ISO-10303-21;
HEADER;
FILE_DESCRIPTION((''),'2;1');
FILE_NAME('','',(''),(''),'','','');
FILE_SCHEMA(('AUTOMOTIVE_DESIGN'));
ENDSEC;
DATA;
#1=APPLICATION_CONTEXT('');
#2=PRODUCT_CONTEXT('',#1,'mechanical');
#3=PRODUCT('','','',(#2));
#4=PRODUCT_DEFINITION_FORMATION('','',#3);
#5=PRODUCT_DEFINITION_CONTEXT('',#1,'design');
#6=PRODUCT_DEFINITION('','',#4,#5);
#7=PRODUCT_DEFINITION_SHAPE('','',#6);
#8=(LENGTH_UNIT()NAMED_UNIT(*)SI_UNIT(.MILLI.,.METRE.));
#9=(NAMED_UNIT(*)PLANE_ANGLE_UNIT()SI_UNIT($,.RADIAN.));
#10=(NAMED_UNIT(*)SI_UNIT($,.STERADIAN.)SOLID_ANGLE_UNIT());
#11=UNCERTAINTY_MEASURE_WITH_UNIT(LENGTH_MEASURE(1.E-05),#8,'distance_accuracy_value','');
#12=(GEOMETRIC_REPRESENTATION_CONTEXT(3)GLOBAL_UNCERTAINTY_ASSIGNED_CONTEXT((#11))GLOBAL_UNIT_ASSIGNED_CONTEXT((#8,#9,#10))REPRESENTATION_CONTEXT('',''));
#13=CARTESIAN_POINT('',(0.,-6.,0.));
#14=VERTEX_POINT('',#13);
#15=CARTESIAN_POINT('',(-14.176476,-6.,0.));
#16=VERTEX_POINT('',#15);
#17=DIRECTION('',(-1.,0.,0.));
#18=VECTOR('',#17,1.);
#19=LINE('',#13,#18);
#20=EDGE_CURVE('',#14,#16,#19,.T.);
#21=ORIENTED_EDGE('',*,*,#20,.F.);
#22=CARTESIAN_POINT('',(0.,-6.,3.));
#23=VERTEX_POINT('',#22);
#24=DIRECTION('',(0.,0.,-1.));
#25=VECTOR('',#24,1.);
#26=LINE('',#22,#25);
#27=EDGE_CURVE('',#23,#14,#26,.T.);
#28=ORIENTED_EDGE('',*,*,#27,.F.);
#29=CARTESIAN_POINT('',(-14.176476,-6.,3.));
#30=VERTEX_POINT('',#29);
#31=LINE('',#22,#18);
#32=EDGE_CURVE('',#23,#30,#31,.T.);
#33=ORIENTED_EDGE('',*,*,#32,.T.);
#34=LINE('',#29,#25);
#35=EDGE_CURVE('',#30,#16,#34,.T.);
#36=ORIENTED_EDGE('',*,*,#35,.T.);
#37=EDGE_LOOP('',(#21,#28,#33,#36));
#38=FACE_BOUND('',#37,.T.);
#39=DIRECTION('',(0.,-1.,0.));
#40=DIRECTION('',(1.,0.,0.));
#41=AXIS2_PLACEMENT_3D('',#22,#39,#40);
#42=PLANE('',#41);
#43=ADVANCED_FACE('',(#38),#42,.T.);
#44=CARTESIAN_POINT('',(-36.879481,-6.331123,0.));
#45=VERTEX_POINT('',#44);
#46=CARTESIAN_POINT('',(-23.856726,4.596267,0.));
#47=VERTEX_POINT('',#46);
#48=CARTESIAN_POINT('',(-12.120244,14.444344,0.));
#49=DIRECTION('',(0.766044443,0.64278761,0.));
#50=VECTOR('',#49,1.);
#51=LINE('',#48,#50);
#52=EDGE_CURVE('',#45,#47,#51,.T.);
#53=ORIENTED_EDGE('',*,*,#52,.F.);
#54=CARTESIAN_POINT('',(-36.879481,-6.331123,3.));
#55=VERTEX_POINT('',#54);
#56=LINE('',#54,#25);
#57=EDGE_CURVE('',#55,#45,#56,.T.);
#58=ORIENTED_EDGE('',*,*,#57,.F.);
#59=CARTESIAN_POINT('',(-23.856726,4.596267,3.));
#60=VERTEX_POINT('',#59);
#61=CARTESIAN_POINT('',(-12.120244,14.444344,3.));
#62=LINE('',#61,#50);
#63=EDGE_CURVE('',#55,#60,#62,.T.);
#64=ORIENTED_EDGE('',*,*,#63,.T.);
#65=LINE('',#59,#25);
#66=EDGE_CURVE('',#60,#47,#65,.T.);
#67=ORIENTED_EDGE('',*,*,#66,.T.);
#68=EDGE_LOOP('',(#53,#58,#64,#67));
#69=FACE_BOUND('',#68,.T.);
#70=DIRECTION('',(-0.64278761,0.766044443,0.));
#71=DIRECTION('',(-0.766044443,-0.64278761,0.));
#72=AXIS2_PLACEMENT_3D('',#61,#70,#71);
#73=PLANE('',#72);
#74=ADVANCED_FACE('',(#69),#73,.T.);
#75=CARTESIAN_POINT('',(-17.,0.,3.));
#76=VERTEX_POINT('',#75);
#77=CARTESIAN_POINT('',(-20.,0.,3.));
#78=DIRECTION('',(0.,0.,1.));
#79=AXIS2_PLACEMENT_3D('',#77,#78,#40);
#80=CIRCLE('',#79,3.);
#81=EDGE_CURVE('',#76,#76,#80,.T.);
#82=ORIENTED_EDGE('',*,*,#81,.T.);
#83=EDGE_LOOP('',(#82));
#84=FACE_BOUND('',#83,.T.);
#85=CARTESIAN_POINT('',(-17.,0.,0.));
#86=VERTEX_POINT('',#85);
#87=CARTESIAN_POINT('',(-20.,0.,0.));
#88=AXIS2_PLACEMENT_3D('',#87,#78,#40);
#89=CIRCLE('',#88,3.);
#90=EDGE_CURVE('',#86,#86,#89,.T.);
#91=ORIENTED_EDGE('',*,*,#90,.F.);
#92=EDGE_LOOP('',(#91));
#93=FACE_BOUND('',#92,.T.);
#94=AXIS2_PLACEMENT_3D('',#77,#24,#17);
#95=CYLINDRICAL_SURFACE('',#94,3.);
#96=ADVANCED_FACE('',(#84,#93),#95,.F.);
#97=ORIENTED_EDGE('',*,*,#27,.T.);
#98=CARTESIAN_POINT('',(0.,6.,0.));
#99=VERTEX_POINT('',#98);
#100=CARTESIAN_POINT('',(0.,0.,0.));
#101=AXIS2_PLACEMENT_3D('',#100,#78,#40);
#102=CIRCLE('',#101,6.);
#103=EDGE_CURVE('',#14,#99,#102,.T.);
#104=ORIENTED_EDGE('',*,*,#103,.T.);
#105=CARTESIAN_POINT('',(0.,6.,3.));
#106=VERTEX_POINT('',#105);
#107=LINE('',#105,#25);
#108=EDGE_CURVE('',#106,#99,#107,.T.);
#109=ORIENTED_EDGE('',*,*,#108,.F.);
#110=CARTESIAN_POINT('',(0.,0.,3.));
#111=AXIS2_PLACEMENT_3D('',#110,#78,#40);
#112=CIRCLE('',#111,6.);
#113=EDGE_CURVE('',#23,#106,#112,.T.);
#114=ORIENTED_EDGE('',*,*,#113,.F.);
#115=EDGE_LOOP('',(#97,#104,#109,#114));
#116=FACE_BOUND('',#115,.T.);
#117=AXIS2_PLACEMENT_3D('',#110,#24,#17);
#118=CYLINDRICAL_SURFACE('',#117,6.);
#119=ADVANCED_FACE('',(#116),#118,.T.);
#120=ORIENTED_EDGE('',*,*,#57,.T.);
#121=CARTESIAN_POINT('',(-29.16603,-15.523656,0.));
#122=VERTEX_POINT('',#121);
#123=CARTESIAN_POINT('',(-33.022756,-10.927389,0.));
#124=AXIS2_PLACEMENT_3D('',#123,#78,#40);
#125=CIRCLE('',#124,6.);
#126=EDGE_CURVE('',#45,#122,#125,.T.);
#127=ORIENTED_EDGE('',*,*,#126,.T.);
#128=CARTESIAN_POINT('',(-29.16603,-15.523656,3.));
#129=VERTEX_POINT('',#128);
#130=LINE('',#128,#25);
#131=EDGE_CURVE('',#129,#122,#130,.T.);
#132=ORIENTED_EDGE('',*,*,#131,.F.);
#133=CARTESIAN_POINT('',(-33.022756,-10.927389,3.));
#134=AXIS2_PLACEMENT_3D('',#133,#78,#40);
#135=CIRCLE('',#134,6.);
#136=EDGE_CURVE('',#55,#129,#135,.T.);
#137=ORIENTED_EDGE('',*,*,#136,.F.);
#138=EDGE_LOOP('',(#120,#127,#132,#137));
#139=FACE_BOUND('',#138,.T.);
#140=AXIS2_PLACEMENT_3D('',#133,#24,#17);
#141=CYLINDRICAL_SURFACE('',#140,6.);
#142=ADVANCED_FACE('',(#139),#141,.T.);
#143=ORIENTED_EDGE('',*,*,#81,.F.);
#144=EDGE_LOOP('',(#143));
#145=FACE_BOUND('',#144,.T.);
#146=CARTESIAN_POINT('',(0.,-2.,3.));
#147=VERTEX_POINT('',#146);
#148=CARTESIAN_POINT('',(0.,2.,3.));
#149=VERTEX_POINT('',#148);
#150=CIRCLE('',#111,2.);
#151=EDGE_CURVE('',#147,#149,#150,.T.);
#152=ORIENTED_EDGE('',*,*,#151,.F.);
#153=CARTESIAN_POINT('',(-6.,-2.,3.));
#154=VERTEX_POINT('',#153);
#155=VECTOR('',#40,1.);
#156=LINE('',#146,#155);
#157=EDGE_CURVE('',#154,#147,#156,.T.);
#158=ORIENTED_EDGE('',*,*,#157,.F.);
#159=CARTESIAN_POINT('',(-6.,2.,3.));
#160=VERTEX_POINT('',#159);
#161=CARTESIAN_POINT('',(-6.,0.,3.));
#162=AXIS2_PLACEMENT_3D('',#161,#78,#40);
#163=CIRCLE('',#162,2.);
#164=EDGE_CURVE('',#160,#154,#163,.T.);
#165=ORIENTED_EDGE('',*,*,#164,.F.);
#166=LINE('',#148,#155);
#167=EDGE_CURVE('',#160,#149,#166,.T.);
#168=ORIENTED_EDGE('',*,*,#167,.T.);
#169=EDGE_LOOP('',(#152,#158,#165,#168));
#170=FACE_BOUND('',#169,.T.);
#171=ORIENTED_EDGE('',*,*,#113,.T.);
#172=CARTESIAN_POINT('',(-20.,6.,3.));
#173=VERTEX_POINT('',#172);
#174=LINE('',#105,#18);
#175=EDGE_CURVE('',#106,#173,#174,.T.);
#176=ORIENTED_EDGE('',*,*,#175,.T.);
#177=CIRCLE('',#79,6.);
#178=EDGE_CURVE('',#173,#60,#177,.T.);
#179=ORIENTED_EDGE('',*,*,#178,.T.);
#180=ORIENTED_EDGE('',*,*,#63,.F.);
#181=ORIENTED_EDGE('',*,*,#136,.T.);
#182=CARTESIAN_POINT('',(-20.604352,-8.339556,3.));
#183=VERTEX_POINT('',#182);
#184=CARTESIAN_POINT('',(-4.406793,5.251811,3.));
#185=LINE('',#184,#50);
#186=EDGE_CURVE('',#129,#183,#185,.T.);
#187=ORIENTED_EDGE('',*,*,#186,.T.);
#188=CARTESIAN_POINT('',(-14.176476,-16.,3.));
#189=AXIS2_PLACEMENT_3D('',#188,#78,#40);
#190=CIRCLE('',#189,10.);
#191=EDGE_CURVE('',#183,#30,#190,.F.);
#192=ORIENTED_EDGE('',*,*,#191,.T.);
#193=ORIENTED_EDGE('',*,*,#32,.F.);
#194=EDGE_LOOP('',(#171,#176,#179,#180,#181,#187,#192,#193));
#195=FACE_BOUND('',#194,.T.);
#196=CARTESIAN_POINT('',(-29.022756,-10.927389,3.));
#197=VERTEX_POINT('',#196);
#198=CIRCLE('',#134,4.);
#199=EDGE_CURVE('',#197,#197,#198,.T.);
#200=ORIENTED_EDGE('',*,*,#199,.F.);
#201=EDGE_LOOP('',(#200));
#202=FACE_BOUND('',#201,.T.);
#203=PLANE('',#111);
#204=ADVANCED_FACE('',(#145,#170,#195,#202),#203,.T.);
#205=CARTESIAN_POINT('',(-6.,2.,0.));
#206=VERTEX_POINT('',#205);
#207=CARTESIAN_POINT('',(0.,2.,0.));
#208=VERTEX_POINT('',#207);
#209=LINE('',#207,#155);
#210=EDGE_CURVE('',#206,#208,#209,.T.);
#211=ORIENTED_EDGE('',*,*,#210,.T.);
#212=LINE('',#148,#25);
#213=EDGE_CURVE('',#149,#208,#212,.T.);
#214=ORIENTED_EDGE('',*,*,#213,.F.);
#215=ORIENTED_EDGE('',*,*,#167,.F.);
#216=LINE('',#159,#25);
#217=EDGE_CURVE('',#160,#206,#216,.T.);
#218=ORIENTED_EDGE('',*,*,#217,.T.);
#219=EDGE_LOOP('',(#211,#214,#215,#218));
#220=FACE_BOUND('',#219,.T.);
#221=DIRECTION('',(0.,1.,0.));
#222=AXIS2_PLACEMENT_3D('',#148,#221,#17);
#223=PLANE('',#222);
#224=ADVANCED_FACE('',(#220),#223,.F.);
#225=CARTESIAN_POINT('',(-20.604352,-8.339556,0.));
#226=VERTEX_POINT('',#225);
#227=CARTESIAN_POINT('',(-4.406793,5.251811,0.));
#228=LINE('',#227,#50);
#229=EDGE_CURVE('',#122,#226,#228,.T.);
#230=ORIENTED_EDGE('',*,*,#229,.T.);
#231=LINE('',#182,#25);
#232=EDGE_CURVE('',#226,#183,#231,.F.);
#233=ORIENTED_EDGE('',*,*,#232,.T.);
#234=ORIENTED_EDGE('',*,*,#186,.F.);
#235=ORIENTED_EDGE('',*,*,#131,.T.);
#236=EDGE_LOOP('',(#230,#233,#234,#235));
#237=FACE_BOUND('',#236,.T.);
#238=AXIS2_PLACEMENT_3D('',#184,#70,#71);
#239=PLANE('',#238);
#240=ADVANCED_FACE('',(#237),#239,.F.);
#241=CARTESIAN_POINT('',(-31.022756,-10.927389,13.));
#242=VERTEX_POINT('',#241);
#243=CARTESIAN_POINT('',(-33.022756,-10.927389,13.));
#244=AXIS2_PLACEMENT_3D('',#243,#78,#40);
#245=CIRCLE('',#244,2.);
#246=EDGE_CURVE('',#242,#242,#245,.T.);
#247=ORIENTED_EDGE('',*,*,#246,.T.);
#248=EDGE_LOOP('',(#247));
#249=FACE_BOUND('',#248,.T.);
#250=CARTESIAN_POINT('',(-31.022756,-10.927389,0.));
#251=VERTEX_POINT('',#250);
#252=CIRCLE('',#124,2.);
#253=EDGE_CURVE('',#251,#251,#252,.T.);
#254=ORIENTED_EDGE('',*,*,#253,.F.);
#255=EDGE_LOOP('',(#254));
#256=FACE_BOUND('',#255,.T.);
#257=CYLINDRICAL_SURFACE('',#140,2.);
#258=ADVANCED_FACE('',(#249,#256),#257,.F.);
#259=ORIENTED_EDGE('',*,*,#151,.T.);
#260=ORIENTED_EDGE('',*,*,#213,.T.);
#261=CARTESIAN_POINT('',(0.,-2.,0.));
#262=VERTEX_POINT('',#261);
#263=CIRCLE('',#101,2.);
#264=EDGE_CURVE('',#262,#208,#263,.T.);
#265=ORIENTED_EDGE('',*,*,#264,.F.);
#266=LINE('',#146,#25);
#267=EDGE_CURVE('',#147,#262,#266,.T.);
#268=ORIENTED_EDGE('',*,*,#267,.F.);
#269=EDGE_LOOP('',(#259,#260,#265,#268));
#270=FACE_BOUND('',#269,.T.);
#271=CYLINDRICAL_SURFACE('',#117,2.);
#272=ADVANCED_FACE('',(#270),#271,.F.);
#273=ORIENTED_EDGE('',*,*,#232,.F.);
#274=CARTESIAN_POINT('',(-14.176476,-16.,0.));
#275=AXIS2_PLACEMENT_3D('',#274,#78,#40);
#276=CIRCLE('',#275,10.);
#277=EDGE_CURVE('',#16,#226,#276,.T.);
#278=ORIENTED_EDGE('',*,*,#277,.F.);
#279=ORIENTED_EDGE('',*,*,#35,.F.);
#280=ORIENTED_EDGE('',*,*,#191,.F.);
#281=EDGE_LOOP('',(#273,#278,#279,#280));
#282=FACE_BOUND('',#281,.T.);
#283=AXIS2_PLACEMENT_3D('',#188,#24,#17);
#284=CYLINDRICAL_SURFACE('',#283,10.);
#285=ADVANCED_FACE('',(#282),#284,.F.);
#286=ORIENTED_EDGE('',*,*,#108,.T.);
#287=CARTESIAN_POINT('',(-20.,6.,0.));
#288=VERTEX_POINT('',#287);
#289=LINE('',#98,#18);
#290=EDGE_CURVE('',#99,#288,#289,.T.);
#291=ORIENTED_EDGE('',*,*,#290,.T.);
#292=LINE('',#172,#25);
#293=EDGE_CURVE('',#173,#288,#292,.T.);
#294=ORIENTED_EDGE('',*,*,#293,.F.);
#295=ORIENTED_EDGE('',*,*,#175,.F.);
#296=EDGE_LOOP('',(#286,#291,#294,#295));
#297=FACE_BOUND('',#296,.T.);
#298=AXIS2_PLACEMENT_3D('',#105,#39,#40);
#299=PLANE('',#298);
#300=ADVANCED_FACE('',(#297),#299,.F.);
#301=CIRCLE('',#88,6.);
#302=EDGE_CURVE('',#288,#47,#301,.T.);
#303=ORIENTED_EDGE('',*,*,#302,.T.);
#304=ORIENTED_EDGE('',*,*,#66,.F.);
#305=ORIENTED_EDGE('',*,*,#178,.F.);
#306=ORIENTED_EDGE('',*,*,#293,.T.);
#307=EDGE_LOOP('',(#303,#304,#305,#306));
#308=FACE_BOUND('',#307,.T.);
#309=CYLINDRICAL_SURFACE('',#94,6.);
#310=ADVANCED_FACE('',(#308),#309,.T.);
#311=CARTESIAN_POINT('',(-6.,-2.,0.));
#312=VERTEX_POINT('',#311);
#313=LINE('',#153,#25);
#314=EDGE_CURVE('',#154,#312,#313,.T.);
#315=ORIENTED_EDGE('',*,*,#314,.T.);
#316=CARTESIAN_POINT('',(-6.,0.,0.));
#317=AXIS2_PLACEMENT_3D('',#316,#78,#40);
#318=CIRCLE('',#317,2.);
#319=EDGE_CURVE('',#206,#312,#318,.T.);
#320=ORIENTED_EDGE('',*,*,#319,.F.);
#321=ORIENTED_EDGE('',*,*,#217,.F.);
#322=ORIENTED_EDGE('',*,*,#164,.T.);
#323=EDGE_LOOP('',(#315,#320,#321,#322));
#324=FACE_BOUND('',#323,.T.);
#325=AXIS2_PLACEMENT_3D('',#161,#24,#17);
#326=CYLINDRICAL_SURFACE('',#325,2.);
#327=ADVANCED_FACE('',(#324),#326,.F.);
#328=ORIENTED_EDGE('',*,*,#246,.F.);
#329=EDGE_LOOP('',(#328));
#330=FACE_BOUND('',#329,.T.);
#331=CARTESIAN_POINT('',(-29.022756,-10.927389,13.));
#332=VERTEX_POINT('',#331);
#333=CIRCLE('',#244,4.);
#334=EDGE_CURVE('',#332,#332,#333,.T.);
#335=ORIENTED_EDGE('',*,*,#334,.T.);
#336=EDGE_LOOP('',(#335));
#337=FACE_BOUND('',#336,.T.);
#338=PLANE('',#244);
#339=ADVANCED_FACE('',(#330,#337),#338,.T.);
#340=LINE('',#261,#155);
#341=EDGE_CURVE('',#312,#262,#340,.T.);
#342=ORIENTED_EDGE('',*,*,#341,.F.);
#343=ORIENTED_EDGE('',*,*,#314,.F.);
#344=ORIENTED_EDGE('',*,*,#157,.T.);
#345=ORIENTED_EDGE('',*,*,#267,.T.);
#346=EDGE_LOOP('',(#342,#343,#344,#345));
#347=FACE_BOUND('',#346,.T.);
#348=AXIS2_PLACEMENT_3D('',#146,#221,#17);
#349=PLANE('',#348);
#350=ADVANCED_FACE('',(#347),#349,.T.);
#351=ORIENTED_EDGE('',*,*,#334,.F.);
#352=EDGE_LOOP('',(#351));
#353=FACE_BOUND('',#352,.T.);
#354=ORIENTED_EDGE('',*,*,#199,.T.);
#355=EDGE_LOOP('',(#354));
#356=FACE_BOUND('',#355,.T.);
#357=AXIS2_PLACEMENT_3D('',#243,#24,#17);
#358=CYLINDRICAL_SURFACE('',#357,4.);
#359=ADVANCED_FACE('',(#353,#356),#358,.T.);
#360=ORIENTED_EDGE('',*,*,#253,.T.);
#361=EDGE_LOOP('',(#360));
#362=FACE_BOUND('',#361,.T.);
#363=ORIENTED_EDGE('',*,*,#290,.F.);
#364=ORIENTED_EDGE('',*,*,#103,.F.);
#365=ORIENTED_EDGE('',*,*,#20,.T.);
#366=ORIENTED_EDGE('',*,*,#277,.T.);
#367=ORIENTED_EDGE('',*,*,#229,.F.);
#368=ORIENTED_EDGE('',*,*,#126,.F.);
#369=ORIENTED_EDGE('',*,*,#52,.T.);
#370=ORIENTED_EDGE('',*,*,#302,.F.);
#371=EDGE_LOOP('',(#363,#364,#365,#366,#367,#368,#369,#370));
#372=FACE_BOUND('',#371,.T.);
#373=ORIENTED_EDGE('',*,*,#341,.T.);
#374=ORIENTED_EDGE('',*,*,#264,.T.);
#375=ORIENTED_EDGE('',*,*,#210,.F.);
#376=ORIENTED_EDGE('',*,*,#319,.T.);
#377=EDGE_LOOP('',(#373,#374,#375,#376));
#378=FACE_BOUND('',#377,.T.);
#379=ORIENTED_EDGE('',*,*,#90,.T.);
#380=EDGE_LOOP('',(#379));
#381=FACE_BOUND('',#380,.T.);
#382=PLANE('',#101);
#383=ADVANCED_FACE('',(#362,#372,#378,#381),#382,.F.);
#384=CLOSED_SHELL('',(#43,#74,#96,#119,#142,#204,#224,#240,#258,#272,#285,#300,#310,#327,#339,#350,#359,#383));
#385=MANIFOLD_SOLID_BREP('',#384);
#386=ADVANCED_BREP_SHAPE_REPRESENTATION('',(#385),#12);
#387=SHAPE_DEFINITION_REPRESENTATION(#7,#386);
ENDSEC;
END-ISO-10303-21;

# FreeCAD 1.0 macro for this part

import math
import FreeCAD as App
import Part
import Sketcher

V = App.Vector
Q = App.Units.Quantity


def edges_at(feature, points):
    """Names of the edges that pass closest to the given points."""
    edges = feature.Shape.Edges
    near = lambda p: min(range(len(edges)), key=lambda i: edges[i].distToShape(Part.Vertex(*p))[0])
    return sorted({f"Edge{near(p) + 1}" for p in points})

doc = App.newDocument("Part")
body = doc.addObject("PartDesign::Body", "Body")

# Sketch on XY plane
sketch1 = body.newObject("Sketcher::SketchObject", "Sketch")
sketch1.AttachmentSupport = (doc.getObject("XY_Plane"), [""])
sketch1.MapMode = "FlatFace"
sketch1.addGeometry([
    Part.LineSegment(V(-17.8, -6, 0), V(0, -6, 0)),  # 0
    Part.ArcOfCircle(Part.Circle(V(0, 0, 0), V(0, 0, 1), 6), math.radians(-90), math.radians(90)),  # 1
    Part.LineSegment(V(0, 6, 0), V(-20, 6, 0)),  # 2
    Part.ArcOfCircle(Part.Circle(V(-20, 0, 0), V(0, 0, 1), 6), math.radians(90), math.radians(130)),  # 3
    Part.LineSegment(V(-23.9, 4.6, 0), V(-36.9, -6.3, 0)),  # 4
    Part.ArcOfCircle(Part.Circle(V(-33, -10.9, 0), V(0, 0, 1), 6), math.radians(130), math.radians(310)),  # 5
    Part.LineSegment(V(-29.2, -15.5, 0), V(-17.8, -6, 0)),  # 6
    Part.Circle(V(-33, -10.9, 0), V(0, 0, 1), 2),  # 7
    Part.Circle(V(-20, 0, 0), V(0, 0, 1), 3),  # 8
    Part.ArcOfCircle(Part.Circle(V(-6, 0, 0), V(0, 0, 1), 2), math.radians(90), math.radians(270)),  # 9
    Part.LineSegment(V(-6, 2, 0), V(0, 2, 0)),  # 10
    Part.ArcOfCircle(Part.Circle(V(0, 0, 0), V(0, 0, 1), 2), math.radians(-90), math.radians(90)),  # 11
    Part.LineSegment(V(0, -2, 0), V(-6, -2, 0)),  # 12
], False)
sketch1.addConstraint([
    Sketcher.Constraint("Tangent", 0, 2, 1, 1),
    Sketcher.Constraint("Tangent", 1, 2, 2, 1),
    Sketcher.Constraint("Tangent", 2, 2, 3, 1),
    Sketcher.Constraint("Tangent", 3, 2, 4, 1),
    Sketcher.Constraint("Tangent", 4, 2, 5, 1),
    Sketcher.Constraint("Tangent", 5, 2, 6, 1),
    Sketcher.Constraint("Coincident", 6, 2, 0, 1),
    Sketcher.Constraint("Tangent", 9, 1, 10, 1),
    Sketcher.Constraint("Tangent", 10, 2, 11, 2),
    Sketcher.Constraint("Tangent", 11, 1, 12, 1),
    Sketcher.Constraint("Tangent", 12, 2, 9, 2),
    Sketcher.Constraint("Horizontal", 0),
    Sketcher.Constraint("Horizontal", 2),
    Sketcher.Constraint("Horizontal", 10),
    Sketcher.Constraint("Horizontal", 12),
    Sketcher.Constraint("Coincident", 1, 3, -1, 1),
    Sketcher.Constraint("Coincident", 11, 3, -1, 1),
    Sketcher.Constraint("Coincident", 7, 3, 5, 3),
    Sketcher.Constraint("Coincident", 8, 3, 3, 3),
    Sketcher.Constraint("Equal", 1, 3),
    Sketcher.Constraint("Equal", 3, 5),
    Sketcher.Constraint("Equal", 7, 9),
    Sketcher.Constraint("Parallel", 4, 6),
    Sketcher.Constraint("Diameter", 7, Q("4 mm")),
    Sketcher.Constraint("Diameter", 8, Q("6 mm")),
    Sketcher.Constraint("Radius", 1, Q("6 mm")),
    Sketcher.Constraint("DistanceX", 2, 2, 2, 1, Q("20 mm")),
    Sketcher.Constraint("DistanceX", 10, 1, 10, 2, Q("6 mm")),
    Sketcher.Constraint("Angle", 4, Q("-140 deg")),
    Sketcher.Constraint("Distance", 4, Q("17 mm")),
])
pad1 = body.newObject("PartDesign::Pad", "Pad")
pad1.Profile = sketch1
pad1.Length = 3
doc.recompute()

fillet = body.newObject("PartDesign::Fillet", "Fillet")
fillet.Base = (pad1, edges_at(pad1, [(-17.816, -6, 1.5)]))
fillet.Radius = 10

# Sketch on XY plane
sketch2 = body.newObject("Sketcher::SketchObject", "Sketch001")
sketch2.AttachmentSupport = (doc.getObject("XY_Plane"), [""])
sketch2.MapMode = "FlatFace"
sketch2.AttachmentOffset = App.Placement(V(0, 0, 3), App.Rotation())
sketch2.addGeometry([
    Part.Circle(V(-33, -10.9, 0), V(0, 0, 1), 4),
    Part.Circle(V(-33, -10.9, 0), V(0, 0, 1), 2),
], False)
sketch2.addConstraint([
    Sketcher.Constraint("Coincident", 1, 3, 0, 3),
    Sketcher.Constraint("Diameter", 0, Q("8 mm")),
    Sketcher.Constraint("Diameter", 1, Q("4 mm")),
    Sketcher.Constraint("DistanceY", 0, 3, -1, 1, Q("10.927389 mm")),
    Sketcher.Constraint("DistanceX", 0, 3, -1, 1, Q("33.022756 mm")),
])
pad2 = body.newObject("PartDesign::Pad", "Pad001")
pad2.Profile = sketch2
pad2.Length = 10

doc.recompute()
